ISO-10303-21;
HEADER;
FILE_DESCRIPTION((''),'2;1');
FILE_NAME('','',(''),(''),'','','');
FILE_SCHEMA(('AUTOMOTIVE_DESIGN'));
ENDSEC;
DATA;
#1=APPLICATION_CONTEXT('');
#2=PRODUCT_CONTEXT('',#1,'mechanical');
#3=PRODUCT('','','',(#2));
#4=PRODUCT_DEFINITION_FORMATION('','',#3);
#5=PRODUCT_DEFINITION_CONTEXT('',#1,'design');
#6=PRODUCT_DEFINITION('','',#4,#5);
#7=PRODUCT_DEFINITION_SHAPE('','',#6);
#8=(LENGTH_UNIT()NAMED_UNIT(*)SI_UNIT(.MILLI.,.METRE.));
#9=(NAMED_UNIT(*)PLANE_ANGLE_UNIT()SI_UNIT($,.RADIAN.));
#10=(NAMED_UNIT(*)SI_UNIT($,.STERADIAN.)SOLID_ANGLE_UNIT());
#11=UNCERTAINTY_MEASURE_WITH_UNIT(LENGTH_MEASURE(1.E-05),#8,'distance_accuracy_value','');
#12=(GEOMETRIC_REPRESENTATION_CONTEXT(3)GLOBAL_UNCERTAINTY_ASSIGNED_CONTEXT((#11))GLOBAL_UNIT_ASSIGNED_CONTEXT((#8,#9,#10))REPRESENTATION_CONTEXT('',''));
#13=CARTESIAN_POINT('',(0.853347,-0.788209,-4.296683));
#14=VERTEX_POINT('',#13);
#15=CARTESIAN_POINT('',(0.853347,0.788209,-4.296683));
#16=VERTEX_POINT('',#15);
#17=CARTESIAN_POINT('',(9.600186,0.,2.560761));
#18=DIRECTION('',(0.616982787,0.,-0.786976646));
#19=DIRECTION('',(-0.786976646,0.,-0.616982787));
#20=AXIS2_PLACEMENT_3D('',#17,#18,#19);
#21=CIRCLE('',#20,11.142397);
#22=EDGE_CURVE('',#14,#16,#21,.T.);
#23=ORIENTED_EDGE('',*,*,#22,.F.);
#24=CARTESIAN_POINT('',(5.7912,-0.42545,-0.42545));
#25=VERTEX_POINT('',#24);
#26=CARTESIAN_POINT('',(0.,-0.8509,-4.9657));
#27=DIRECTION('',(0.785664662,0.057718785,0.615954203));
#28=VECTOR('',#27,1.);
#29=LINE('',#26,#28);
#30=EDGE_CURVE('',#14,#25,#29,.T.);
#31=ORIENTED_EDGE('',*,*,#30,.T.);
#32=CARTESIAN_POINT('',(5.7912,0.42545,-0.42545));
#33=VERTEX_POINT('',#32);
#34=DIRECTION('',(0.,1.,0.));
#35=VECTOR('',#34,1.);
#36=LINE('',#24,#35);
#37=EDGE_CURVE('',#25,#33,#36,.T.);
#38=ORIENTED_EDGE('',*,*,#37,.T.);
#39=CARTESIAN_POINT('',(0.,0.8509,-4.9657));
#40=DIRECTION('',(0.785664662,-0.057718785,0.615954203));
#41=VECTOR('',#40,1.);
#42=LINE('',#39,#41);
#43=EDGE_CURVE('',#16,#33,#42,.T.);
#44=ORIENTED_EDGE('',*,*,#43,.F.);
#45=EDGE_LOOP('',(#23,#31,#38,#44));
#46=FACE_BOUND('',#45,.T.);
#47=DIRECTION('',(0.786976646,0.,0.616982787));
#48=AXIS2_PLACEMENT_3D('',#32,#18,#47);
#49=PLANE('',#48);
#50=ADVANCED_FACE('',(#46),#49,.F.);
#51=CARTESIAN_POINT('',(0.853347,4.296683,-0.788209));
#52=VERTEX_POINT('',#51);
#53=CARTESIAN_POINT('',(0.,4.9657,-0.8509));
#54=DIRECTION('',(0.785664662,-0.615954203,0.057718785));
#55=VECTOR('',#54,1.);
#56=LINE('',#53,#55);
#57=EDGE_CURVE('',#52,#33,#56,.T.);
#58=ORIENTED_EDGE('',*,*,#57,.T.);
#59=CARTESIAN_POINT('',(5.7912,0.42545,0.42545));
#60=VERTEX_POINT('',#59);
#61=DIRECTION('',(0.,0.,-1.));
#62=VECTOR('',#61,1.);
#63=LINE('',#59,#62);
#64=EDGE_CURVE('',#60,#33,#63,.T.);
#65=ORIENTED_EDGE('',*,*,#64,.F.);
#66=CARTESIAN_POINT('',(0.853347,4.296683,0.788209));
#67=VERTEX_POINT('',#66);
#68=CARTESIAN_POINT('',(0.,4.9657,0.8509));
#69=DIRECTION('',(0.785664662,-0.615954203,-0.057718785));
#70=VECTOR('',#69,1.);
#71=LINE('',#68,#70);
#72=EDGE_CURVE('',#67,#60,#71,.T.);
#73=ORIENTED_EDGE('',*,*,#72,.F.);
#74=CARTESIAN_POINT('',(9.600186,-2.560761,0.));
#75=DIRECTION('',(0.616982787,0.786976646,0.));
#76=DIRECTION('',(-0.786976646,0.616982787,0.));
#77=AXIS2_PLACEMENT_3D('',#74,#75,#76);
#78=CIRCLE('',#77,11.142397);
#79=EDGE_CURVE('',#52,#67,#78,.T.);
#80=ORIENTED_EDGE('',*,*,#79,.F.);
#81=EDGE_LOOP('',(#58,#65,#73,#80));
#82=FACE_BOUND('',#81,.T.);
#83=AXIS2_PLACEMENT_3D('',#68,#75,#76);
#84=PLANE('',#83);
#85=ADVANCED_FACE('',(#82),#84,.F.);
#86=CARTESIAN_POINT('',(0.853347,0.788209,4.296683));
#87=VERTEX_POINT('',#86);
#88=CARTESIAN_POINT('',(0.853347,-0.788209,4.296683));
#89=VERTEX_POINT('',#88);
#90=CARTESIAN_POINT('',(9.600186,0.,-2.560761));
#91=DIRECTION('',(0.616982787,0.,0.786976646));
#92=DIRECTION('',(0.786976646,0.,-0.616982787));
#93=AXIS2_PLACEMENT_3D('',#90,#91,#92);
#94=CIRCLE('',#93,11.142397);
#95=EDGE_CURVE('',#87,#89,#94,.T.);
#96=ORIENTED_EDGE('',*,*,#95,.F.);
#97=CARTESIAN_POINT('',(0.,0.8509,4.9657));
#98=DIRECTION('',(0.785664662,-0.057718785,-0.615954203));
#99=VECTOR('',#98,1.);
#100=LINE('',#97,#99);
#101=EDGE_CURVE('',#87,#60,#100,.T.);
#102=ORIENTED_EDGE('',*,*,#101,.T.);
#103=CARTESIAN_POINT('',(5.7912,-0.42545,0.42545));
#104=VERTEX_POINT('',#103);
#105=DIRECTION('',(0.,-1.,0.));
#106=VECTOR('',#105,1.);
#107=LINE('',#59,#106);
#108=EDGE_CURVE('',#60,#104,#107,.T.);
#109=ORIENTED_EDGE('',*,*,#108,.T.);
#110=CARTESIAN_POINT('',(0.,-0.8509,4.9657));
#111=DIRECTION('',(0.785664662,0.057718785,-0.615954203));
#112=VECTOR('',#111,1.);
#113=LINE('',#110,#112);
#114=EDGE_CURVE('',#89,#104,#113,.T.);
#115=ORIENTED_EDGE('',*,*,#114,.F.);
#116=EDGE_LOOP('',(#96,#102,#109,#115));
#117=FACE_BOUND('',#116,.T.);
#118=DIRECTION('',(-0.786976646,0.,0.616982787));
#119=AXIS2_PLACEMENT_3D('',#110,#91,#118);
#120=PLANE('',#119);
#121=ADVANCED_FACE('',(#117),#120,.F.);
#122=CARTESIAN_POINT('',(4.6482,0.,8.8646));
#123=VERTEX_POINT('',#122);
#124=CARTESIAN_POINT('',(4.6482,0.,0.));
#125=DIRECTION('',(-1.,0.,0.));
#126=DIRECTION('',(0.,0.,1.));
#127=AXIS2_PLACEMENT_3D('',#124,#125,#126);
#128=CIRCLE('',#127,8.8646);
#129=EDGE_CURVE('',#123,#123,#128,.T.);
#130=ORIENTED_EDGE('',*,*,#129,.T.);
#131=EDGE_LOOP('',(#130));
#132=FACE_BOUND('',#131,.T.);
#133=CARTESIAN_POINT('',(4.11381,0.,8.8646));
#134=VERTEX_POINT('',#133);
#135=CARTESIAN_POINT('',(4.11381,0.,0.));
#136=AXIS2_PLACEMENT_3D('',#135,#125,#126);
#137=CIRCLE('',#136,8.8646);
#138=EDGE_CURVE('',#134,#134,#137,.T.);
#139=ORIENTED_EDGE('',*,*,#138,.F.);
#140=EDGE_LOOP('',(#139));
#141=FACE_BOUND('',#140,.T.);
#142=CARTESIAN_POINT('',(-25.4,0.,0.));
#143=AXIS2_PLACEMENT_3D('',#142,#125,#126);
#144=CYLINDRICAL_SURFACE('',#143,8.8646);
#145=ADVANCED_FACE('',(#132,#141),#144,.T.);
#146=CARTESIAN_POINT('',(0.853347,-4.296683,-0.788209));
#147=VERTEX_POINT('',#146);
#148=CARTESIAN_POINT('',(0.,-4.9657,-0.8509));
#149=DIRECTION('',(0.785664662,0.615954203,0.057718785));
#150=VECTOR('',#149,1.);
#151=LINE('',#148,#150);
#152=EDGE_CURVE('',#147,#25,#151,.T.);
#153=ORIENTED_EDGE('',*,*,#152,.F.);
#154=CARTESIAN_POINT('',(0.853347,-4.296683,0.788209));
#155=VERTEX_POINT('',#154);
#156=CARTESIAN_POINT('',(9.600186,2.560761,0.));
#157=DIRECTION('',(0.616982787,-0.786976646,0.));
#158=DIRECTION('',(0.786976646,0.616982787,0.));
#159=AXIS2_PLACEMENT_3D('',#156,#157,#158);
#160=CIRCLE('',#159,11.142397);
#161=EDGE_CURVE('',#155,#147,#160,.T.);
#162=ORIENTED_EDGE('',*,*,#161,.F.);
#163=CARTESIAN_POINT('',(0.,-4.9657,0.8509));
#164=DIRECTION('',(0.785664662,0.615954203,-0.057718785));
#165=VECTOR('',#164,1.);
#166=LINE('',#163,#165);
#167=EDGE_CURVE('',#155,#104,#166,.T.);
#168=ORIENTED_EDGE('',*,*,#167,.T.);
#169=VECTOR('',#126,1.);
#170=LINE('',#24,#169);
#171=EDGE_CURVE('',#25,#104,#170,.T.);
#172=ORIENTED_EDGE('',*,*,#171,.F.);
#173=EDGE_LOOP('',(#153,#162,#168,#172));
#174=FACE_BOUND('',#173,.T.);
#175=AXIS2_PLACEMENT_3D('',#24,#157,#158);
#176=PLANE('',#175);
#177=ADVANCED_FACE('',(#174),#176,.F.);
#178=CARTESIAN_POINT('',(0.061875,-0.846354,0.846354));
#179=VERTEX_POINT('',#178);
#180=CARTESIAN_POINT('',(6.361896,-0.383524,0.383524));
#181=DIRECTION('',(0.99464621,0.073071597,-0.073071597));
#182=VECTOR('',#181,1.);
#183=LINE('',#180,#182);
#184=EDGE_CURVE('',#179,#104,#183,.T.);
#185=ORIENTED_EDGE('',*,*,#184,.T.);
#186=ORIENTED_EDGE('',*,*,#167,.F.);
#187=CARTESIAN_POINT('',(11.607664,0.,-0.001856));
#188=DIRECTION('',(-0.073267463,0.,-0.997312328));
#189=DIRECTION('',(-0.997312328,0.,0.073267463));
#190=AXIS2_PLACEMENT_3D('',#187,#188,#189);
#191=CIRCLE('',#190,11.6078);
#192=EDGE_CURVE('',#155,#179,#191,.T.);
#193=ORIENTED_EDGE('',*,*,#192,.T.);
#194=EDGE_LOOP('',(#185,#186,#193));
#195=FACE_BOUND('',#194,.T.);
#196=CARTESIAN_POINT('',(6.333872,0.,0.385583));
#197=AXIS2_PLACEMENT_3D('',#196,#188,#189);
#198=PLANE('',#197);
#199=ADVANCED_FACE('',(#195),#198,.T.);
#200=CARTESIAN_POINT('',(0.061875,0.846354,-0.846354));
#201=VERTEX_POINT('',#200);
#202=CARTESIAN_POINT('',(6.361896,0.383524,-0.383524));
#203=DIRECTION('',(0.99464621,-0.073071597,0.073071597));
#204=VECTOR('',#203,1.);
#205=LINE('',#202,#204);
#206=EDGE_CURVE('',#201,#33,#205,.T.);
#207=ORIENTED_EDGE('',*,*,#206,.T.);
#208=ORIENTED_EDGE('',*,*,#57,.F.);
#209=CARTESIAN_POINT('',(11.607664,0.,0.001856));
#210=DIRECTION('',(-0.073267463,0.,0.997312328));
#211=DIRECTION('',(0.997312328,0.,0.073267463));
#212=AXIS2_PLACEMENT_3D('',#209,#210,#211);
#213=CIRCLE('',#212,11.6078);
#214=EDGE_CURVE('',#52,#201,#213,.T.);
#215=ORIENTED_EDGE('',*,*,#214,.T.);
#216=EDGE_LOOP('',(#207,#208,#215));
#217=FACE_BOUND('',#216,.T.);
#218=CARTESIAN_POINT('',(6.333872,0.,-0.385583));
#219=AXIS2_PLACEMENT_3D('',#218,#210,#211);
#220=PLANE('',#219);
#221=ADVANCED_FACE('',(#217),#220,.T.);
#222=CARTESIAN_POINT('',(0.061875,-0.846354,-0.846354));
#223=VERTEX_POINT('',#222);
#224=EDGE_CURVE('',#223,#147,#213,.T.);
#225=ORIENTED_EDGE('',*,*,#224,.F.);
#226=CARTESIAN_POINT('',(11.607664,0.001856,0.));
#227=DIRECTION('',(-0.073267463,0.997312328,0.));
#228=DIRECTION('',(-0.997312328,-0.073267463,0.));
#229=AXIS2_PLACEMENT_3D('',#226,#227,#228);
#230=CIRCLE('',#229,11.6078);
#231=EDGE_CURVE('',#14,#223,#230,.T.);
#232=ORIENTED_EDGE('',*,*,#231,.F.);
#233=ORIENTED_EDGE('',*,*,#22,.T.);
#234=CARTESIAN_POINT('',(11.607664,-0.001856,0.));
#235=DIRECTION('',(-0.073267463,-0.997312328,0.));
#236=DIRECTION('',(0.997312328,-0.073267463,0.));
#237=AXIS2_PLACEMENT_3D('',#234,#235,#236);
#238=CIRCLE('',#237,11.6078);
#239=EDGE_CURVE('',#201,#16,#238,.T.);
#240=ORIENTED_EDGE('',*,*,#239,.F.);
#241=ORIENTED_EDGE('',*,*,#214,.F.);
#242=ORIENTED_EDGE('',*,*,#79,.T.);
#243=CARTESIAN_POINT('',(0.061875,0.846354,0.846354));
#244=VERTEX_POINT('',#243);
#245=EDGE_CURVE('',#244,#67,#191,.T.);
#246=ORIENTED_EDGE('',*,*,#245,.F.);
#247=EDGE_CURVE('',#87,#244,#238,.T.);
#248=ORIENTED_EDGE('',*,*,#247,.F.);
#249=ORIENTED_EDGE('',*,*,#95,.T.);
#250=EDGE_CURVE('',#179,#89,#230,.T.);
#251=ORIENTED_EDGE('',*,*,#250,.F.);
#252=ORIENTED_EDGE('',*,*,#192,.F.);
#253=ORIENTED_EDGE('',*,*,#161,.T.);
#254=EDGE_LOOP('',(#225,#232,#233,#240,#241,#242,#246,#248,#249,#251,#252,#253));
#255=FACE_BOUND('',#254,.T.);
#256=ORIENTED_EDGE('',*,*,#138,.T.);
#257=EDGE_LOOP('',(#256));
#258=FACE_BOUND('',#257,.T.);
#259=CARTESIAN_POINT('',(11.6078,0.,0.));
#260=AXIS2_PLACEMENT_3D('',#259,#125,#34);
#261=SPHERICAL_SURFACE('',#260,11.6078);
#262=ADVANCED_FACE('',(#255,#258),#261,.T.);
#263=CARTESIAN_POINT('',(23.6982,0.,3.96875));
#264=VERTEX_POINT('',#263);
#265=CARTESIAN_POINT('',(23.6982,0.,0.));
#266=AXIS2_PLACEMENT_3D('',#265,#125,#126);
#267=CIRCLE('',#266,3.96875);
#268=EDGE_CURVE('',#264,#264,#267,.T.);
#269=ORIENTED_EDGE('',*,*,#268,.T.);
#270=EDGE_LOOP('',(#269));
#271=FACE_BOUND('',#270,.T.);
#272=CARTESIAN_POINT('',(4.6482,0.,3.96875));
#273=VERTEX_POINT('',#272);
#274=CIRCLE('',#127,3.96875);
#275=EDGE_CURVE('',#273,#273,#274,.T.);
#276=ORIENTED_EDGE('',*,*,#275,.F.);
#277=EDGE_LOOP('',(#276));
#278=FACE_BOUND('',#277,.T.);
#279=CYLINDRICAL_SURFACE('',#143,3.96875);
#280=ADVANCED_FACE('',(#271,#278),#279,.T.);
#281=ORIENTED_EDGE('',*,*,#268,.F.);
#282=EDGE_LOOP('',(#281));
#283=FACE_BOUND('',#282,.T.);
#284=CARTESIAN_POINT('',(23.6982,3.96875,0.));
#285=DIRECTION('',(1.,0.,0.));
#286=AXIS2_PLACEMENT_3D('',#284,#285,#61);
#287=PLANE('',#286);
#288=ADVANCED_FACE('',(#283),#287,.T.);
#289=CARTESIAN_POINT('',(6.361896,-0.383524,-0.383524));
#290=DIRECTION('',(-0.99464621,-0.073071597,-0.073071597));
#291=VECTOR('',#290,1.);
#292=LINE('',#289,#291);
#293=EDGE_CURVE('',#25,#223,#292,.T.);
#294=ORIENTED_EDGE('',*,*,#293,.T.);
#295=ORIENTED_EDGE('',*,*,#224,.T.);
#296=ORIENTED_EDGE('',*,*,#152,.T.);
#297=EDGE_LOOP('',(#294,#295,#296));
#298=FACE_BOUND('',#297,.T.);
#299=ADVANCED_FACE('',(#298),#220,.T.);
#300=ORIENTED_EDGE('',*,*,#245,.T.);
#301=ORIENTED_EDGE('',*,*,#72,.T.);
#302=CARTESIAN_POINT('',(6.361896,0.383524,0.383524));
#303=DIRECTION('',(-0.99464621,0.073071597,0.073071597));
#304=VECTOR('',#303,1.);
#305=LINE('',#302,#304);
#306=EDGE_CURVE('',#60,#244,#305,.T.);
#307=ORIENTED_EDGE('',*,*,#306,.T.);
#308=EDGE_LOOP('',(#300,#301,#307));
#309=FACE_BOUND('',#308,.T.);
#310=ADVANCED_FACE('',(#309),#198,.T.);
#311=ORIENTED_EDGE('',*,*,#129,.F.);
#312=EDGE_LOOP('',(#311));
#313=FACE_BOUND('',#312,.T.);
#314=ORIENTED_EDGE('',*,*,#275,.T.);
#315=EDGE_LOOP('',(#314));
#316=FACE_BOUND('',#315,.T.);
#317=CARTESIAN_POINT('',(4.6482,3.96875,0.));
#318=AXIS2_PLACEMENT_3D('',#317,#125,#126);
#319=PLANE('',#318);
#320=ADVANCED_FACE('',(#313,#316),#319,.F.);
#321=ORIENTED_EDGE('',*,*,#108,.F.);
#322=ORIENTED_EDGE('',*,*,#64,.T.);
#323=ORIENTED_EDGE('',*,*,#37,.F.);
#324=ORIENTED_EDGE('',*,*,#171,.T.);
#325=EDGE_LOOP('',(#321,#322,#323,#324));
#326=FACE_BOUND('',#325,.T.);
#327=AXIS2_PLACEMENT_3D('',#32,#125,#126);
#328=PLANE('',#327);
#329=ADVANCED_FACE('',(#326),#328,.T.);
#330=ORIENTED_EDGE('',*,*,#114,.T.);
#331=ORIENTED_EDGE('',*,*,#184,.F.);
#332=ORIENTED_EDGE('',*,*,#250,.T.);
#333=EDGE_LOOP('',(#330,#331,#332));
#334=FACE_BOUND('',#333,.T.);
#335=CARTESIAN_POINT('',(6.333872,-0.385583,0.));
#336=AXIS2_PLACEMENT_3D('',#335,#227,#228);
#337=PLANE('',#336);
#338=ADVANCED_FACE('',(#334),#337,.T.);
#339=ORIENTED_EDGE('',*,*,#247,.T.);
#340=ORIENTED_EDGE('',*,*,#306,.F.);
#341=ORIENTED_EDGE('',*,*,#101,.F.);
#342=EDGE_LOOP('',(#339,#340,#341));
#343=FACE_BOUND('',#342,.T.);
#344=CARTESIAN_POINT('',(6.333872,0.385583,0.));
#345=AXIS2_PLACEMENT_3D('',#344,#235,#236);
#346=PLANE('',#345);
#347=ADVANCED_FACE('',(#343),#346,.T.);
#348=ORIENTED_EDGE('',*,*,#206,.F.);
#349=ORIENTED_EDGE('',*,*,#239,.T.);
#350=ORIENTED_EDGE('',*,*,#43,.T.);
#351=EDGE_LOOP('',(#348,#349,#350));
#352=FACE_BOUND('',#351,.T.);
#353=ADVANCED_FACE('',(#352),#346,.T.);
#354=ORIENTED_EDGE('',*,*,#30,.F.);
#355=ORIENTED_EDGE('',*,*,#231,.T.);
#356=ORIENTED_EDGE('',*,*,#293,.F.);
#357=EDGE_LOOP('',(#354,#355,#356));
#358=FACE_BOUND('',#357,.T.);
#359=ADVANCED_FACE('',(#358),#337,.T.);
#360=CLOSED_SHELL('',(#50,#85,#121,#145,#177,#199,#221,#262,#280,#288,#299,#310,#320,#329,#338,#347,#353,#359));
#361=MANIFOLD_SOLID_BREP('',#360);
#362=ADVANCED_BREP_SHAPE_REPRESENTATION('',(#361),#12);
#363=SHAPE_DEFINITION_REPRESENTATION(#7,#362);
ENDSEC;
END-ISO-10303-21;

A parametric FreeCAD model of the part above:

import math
import FreeCAD as App
import Part
import Sketcher
from FreeCAD import Vector
Q = App.Units.Quantity

doc = App.newDocument("Part")
body = doc.addObject("PartDesign::Body", "Body")

sketch1 = body.newObject("Sketcher::SketchObject", "Sketch")
sketch1.AttachmentSupport = (doc.getObject("XY_Plane"), [""])
sketch1.MapMode = "FlatFace"
sketch1.addGeometry(Part.LineSegment(Vector(4.6, 4, 0), Vector(4.6, 8.9, 0)), False)
sketch1.addGeometry(Part.LineSegment(Vector(4.6, 8.9, 0), Vector(4.1, 8.9, 0)), False)
sketch1.addGeometry(Part.ArcOfCircle(Part.Circle(Vector(11.6, 0, 0), Vector(0, 0, 1), 11.6), math.radians(130), math.radians(180)), False)
sketch1.addGeometry(Part.LineSegment(Vector(0, 0, 0), Vector(23.7, 0, 0)), False)
sketch1.addGeometry(Part.LineSegment(Vector(23.7, 0, 0), Vector(23.7, 4, 0)), False)
sketch1.addGeometry(Part.LineSegment(Vector(23.7, 4, 0), Vector(4.6, 4, 0)), False)
sketch1.addConstraint(Sketcher.Constraint("Coincident", 0, 2, 1, 1))
sketch1.addConstraint(Sketcher.Constraint("Coincident", 1, 2, 2, 1))
sketch1.addConstraint(Sketcher.Constraint("Coincident", 2, 2, 3, 1))
sketch1.addConstraint(Sketcher.Constraint("Coincident", 3, 2, 4, 1))
sketch1.addConstraint(Sketcher.Constraint("Coincident", 4, 2, 5, 1))
sketch1.addConstraint(Sketcher.Constraint("Coincident", 5, 2, 0, 1))
sketch1.addConstraint(Sketcher.Constraint("Vertical", 0))
sketch1.addConstraint(Sketcher.Constraint("Horizontal", 1))
sketch1.addConstraint(Sketcher.Constraint("Horizontal", 3))
sketch1.addConstraint(Sketcher.Constraint("Vertical", 4))
sketch1.addConstraint(Sketcher.Constraint("Horizontal", 5))
sketch1.addConstraint(Sketcher.Constraint("Coincident", 2, 2, -1, 1))
sketch1.addConstraint(Sketcher.Constraint("PointOnObject", 2, 3, -1))
sketch1.addConstraint(Sketcher.Constraint("Radius", 2, Q("0.457 in")))
sketch1.addConstraint(Sketcher.Constraint("DistanceX", 5, 2, 5, 1, Q("0.75 in")))
sketch1.addConstraint(Sketcher.Constraint("DistanceX", 3, 1, 3, 2, Q("0.933 in")))
sketch1.addConstraint(Sketcher.Constraint("DistanceY", 4, 1, 4, 2, Q("0.15625 in")))
sketch1.addConstraint(Sketcher.Constraint("DistanceY", -1, 1, 0, 2, Q("0.349 in")))
revolution = body.newObject("PartDesign::Revolution", "Revolution")
revolution.Profile = sketch1
revolution.ReferenceAxis = (sketch1, ["H_Axis"])
revolution.Angle = 360

sketch2 = body.newObject("Sketcher::SketchObject", "Sketch001")
sketch2.AttachmentSupport = (doc.getObject("YZ_Plane"), [""])
sketch2.MapMode = "FlatFace"
sketch2.addGeometry(Part.LineSegment(Vector(-5, 0.9, 0), Vector(-5, -0.9, 0)), False)
sketch2.addGeometry(Part.LineSegment(Vector(-5, -0.9, 0), Vector(5, -0.9, 0)), False)
sketch2.addGeometry(Part.LineSegment(Vector(5, -0.9, 0), Vector(5, 0.9, 0)), False)
sketch2.addGeometry(Part.LineSegment(Vector(5, 0.9, 0), Vector(-5, 0.9, 0)), False)
sketch2.addConstraint(Sketcher.Constraint("Coincident", 0, 2, 1, 1))
sketch2.addConstraint(Sketcher.Constraint("Coincident", 1, 2, 2, 1))
sketch2.addConstraint(Sketcher.Constraint("Coincident", 2, 2, 3, 1))
sketch2.addConstraint(Sketcher.Constraint("Coincident", 3, 2, 0, 1))
sketch2.addConstraint(Sketcher.Constraint("Vertical", 0))
sketch2.addConstraint(Sketcher.Constraint("Horizontal", 1))
sketch2.addConstraint(Sketcher.Constraint("Vertical", 2))
sketch2.addConstraint(Sketcher.Constraint("Horizontal", 3))
sketch2.addConstraint(Sketcher.Constraint("Symmetric", 0, 2, 2, 2, -1, 1))
sketch2.addConstraint(Sketcher.Constraint("DistanceX", 1, 1, 1, 2, Q("0.391 in")))
sketch2.addConstraint(Sketcher.Constraint("DistanceY", 0, 2, 0, 1, Q("0.067 in")))

sketch3 = body.newObject("Sketcher::SketchObject", "Sketch002")
sketch3.AttachmentSupport = (doc.getObject("YZ_Plane"), [""])
sketch3.MapMode = "FlatFace"
sketch3.AttachmentOffset = App.Placement(Vector(0, 0, 0.228 * 25.4), App.Rotation())
sketch3.addGeometry(Part.LineSegment(Vector(-0.4, 0.4, 0), Vector(-0.4, -0.4, 0)), False)
sketch3.addGeometry(Part.LineSegment(Vector(-0.4, -0.4, 0), Vector(0.4, -0.4, 0)), False)
sketch3.addGeometry(Part.LineSegment(Vector(0.4, -0.4, 0), Vector(0.4, 0.4, 0)), False)
sketch3.addGeometry(Part.LineSegment(Vector(0.4, 0.4, 0), Vector(-0.4, 0.4, 0)), False)
sketch3.addConstraint(Sketcher.Constraint("Coincident", 0, 2, 1, 1))
sketch3.addConstraint(Sketcher.Constraint("Coincident", 1, 2, 2, 1))
sketch3.addConstraint(Sketcher.Constraint("Coincident", 2, 2, 3, 1))
sketch3.addConstraint(Sketcher.Constraint("Coincident", 3, 2, 0, 1))
sketch3.addConstraint(Sketcher.Constraint("Vertical", 0))
sketch3.addConstraint(Sketcher.Constraint("Horizontal", 1))
sketch3.addConstraint(Sketcher.Constraint("Vertical", 2))
sketch3.addConstraint(Sketcher.Constraint("Horizontal", 3))
sketch3.addConstraint(Sketcher.Constraint("Symmetric", 0, 2, 2, 2, -1, 1))
sketch3.addConstraint(Sketcher.Constraint("Equal", 3, 0))
sketch3.addConstraint(Sketcher.Constraint("DistanceX", 1, 1, 1, 2, Q("0.0335 in")))

subtractiveloft = body.newObject("PartDesign::SubtractiveLoft", "SubtractiveLoft")
subtractiveloft.Profile = sketch2
subtractiveloft.Sections = [sketch3]
doc.recompute()

polarpattern = body.newObject("PartDesign::PolarPattern", "PolarPattern")
polarpattern.Originals = [subtractiveloft]
polarpattern.Axis = (doc.getObject("X_Axis"), [""])
polarpattern.Angle = 90
polarpattern.Occurrences = 2
body.Tip = polarpattern

doc.recompute()
